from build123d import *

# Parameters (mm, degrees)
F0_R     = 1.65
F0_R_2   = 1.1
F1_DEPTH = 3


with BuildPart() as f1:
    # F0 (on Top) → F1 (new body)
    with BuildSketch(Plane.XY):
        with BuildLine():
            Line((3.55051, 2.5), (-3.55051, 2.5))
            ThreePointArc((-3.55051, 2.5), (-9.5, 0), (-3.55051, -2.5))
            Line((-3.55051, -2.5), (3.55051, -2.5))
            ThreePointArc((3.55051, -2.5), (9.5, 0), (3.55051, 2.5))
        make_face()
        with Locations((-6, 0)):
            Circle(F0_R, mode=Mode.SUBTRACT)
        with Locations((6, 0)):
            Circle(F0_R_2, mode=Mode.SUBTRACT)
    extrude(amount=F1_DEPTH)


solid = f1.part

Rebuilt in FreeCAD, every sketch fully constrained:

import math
import FreeCAD as App
import Part
import Sketcher
Q = App.Units.Quantity

doc = App.newDocument("Part")
body = doc.addObject("PartDesign::Body", "Body")

# Sketch on XY plane
sketch1 = body.newObject("Sketcher::SketchObject", "Sketch")
sketch1.AttachmentSupport = (doc.getObject("XY_Plane"), [""])
sketch1.MapMode = "FlatFace"
sketch1.addGeometry(Part.LineSegment(App.Vector(3.55051, 2.5, 0), App.Vector(-3.55051, 2.5, 0)), False)
sketch1.addGeometry(Part.ArcOfCircle(Part.Circle(App.Vector(-6, 0, 0), App.Vector(0, 0, 1), 3.5), math.radians(45.58469), math.radians(314.41531)), False)
sketch1.addGeometry(Part.LineSegment(App.Vector(-3.55051, -2.5, 0), App.Vector(3.55051, -2.5, 0)), False)
sketch1.addGeometry(Part.ArcOfCircle(Part.Circle(App.Vector(6, 0, 0), App.Vector(0, 0, 1), 3.5), math.radians(-134.41531), math.radians(134.41531)), False)
sketch1.addGeometry(Part.Circle(App.Vector(-6, 0, 0), App.Vector(0, 0, 1), 1.65), False)
sketch1.addGeometry(Part.Circle(App.Vector(6, 0, 0), App.Vector(0, 0, 1), 1.1), False)
sketch1.addConstraint(Sketcher.Constraint("Coincident", 0, 2, 1, 1))
sketch1.addConstraint(Sketcher.Constraint("Coincident", 1, 2, 2, 1))
sketch1.addConstraint(Sketcher.Constraint("Coincident", 2, 2, 3, 1))
sketch1.addConstraint(Sketcher.Constraint("Coincident", 3, 2, 0, 1))
sketch1.addConstraint(Sketcher.Constraint("Horizontal", 0))
sketch1.addConstraint(Sketcher.Constraint("Horizontal", 2))
sketch1.addConstraint(Sketcher.Constraint("Coincident", 4, 3, 1, 3))
sketch1.addConstraint(Sketcher.Constraint("Coincident", 5, 3, 3, 3))
sketch1.addConstraint(Sketcher.Constraint("Equal", 1, 3))
sketch1.addConstraint(Sketcher.Constraint("Symmetric", 1, 3, 3, 3, -1, 1))
sketch1.addConstraint(Sketcher.Constraint("Symmetric", 0, 2, 1, 2, -1))
sketch1.addConstraint(Sketcher.Constraint("Diameter", 4, Q("3.3 mm")))
sketch1.addConstraint(Sketcher.Constraint("Diameter", 5, Q("2.2 mm")))
sketch1.addConstraint(Sketcher.Constraint("Radius", 1, Q("3.5 mm")))
sketch1.addConstraint(Sketcher.Constraint("DistanceX", 1, 3, -1, 1, Q("6 mm")))
sketch1.addConstraint(Sketcher.Constraint("DistanceY", 1, 2, 0, 2, Q("5 mm")))
pad1 = body.newObject("PartDesign::Pad", "Pad")
pad1.Profile = sketch1
pad1.Length = 3

doc.recompute()
